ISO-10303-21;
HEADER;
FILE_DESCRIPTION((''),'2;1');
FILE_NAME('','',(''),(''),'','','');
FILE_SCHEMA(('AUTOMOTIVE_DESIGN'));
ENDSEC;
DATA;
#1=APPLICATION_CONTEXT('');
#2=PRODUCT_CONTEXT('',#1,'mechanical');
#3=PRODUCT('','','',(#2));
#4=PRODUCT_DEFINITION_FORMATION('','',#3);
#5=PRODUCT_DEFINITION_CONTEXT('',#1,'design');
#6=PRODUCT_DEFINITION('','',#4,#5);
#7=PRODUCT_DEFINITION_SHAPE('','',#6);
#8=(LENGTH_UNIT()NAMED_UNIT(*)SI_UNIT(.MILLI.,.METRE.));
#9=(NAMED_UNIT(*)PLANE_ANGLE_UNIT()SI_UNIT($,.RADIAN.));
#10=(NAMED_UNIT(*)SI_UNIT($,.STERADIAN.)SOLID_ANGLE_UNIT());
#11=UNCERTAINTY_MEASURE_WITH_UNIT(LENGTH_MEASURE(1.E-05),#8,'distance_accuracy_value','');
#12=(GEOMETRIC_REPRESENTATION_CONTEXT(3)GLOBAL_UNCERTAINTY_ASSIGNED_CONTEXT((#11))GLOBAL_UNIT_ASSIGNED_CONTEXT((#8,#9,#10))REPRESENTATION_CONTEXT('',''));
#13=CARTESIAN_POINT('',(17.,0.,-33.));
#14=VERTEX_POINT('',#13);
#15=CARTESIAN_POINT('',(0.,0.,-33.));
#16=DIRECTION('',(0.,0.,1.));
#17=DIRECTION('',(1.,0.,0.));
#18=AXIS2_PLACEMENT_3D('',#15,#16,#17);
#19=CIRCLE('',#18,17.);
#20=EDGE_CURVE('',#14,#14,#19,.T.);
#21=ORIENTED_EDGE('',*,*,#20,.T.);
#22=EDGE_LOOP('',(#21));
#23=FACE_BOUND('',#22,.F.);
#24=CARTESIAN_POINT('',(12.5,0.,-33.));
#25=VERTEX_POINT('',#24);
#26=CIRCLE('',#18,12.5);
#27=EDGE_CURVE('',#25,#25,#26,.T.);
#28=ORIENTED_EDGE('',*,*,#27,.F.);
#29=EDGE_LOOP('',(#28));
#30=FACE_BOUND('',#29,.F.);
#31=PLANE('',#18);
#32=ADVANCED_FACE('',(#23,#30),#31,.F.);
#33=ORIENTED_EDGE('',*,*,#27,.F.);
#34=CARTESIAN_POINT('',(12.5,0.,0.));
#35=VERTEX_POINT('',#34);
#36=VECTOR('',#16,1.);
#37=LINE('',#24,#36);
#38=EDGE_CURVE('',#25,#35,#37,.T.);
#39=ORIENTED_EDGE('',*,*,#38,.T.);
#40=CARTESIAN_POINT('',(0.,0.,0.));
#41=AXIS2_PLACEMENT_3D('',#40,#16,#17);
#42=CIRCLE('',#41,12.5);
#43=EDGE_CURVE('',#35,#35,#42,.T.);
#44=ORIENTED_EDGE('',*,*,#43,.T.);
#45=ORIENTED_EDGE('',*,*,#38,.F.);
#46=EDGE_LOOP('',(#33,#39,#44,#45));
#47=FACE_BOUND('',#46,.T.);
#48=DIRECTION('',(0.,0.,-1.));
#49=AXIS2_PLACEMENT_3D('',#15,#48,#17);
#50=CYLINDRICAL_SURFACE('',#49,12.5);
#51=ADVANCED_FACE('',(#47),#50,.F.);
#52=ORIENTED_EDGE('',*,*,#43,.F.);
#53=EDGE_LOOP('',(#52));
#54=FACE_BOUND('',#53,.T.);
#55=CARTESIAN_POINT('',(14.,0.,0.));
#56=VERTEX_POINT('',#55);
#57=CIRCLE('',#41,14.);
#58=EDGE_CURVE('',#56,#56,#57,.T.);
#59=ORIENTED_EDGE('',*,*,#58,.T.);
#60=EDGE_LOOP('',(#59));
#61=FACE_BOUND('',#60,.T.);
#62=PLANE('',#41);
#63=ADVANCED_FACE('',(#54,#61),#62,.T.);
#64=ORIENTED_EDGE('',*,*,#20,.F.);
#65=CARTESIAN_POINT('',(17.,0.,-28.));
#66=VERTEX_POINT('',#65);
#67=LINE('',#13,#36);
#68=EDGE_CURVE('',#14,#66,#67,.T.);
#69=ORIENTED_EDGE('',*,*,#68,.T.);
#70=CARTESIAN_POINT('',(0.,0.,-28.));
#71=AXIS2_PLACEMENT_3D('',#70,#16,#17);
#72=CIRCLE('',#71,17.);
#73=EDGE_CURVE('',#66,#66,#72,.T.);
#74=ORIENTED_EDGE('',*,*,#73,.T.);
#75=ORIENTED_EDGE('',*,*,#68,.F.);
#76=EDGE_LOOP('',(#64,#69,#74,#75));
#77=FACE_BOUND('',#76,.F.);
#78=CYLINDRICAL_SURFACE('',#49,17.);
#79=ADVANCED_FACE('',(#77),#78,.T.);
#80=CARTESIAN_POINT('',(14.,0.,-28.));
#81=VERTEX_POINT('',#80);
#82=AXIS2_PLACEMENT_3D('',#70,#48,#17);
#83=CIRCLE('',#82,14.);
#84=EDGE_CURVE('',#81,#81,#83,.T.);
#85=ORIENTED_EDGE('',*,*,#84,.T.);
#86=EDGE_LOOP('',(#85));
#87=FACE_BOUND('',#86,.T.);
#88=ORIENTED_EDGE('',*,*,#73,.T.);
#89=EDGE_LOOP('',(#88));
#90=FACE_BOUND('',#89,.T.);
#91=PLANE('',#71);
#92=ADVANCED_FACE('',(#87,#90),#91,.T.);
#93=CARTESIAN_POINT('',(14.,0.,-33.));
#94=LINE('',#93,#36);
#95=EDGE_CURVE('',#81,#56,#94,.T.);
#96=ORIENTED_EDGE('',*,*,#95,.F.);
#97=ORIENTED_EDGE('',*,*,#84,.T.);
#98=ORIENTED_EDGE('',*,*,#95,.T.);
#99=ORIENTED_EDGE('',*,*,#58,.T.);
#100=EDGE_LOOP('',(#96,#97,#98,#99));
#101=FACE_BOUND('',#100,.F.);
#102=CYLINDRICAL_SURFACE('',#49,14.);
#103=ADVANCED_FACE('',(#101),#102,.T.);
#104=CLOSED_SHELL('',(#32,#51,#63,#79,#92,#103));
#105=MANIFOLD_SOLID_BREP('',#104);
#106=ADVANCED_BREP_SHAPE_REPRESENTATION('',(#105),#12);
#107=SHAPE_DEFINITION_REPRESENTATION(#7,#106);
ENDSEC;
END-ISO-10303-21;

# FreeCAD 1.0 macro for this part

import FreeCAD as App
import Part
import Sketcher

V = App.Vector

doc = App.newDocument("Part")
body = doc.addObject("PartDesign::Body", "Body")

# Sketch on XY plane
sketch1 = body.newObject("Sketcher::SketchObject", "Sketch")
sketch1.AttachmentSupport = (doc.getObject("XY_Plane"), [""])
sketch1.MapMode = "FlatFace"
sketch1.AttachmentOffset = App.Placement(V(0, 0, -15), App.Rotation())
sketch1.addGeometry(Part.Circle(V(53.66, 148, 0), V(0, 0, 1), 1.5), False)
sketch1.addConstraint(Sketcher.Constraint("Diameter", 0, 3.0))
sketch1.addConstraint(Sketcher.Constraint("DistanceY", -1, 1, 0, 3, 148.0))
sketch1.addConstraint(Sketcher.Constraint("DistanceX", -1, 1, 0, 3, 53.66))
pad1 = body.newObject("PartDesign::Pad", "Pad")
pad1.Profile = sketch1
pad1.Length = 14
body2 = doc.addObject("PartDesign::Body", "Body001")

# Sketch on XY plane
sketch2 = body2.newObject("Sketcher::SketchObject", "Sketch001")
sketch2.AttachmentSupport = (doc.getObject("XY_Plane001"), [""])
sketch2.MapMode = "FlatFace"
sketch2.AttachmentOffset = App.Placement(V(0, 0, -10), App.Rotation())
sketch2.addGeometry(Part.Circle(V(73.66, 148, 0), V(0, 0, 1), 12.5), False)
sketch2.addConstraint(Sketcher.Constraint("Diameter", 0, 25.0))
sketch2.addConstraint(Sketcher.Constraint("DistanceY", -1, 1, 0, 3, 148.0))
sketch2.addConstraint(Sketcher.Constraint("DistanceX", -1, 1, 0, 3, 73.66))
pad2 = body2.newObject("PartDesign::Pad", "Pad001")
pad2.Profile = sketch2
pad2.Length = 33
body3 = doc.addObject("PartDesign::Body", "Body002")
body3.AllowCompound = True

# Sketch on XY plane
sketch3 = body3.newObject("Sketcher::SketchObject", "Sketch002")
sketch3.AttachmentSupport = (doc.getObject("XY_Plane002"), [""])
sketch3.MapMode = "FlatFace"
sketch3.AttachmentOffset = App.Placement(V(0, 0, -14), App.Rotation())
sketch3.addGeometry(Part.Circle(V(93.66, 148, 0), V(0, 0, 1), 1.5), False)
sketch3.addConstraint(Sketcher.Constraint("Diameter", 0, 3.0))
sketch3.addConstraint(Sketcher.Constraint("DistanceY", -1, 1, 0, 3, 148.0))
sketch3.addConstraint(Sketcher.Constraint("DistanceX", -1, 1, 0, 3, 93.66))
pad3 = body3.newObject("PartDesign::Pad", "Pad002")
pad3.Profile = sketch3
pad3.Length = 14
doc.recompute()

boolean = body3.newObject("PartDesign::Boolean", "Boolean")
boolean.Type = "Fuse"
boolean.addObjects([body])
doc.recompute()

boolean2 = body3.newObject("PartDesign::Boolean", "Boolean001")
boolean2.Type = "Fuse"
boolean2.addObjects([body2])
body4 = doc.addObject("PartDesign::Body", "Body003")

# Sketch on XY plane
sketch4 = body4.newObject("Sketcher::SketchObject", "Sketch003")
sketch4.AttachmentSupport = (doc.getObject("XY_Plane003"), [""])
sketch4.MapMode = "FlatFace"
sketch4.AttachmentOffset = App.Placement(V(0, 0, -10), App.Rotation())
sketch4.addGeometry(Part.Circle(V(73.66, 148, 0), V(0, 0, 1), 14), False)
sketch4.addConstraint(Sketcher.Constraint("Diameter", 0, 28.0))
sketch4.addConstraint(Sketcher.Constraint("DistanceY", -1, 1, 0, 3, 148.0))
sketch4.addConstraint(Sketcher.Constraint("DistanceX", -1, 1, 0, 3, 73.66))
pad4 = body4.newObject("PartDesign::Pad", "Pad003")
pad4.Profile = sketch4
pad4.Length = 33
body5 = doc.addObject("PartDesign::Body", "Body004")

# Sketch on XY plane
sketch5 = body5.newObject("Sketcher::SketchObject", "Sketch004")
sketch5.AttachmentSupport = (doc.getObject("XY_Plane004"), [""])
sketch5.MapMode = "FlatFace"
sketch5.AttachmentOffset = App.Placement(V(0, 0, -8), App.Rotation())
sketch5.addGeometry(Part.LineSegment(V(63, 137, 0), V(63, 136, 0)), False)
sketch5.addGeometry(Part.LineSegment(V(63, 136, 0), V(64, 136, 0)), False)
sketch5.addGeometry(Part.LineSegment(V(64, 136, 0), V(64, 137, 0)), False)
sketch5.addGeometry(Part.LineSegment(V(64, 137, 0), V(63, 137, 0)), False)
sketch5.addConstraint(Sketcher.Constraint("Coincident", 0, 2, 1, 1))
sketch5.addConstraint(Sketcher.Constraint("Coincident", 1, 2, 2, 1))
sketch5.addConstraint(Sketcher.Constraint("Coincident", 2, 2, 3, 1))
sketch5.addConstraint(Sketcher.Constraint("Coincident", 3, 2, 0, 1))
sketch5.addConstraint(Sketcher.Constraint("Vertical", 0))
sketch5.addConstraint(Sketcher.Constraint("Horizontal", 1))
sketch5.addConstraint(Sketcher.Constraint("Vertical", 2))
sketch5.addConstraint(Sketcher.Constraint("Horizontal", 3))
sketch5.addConstraint(Sketcher.Constraint("Equal", 3, 0))
sketch5.addConstraint(Sketcher.Constraint("DistanceX", 1, 1, 1, 2, 1.0))
sketch5.addConstraint(Sketcher.Constraint("DistanceX", -1, 1, 0, 2, 63.0))
sketch5.addConstraint(Sketcher.Constraint("DistanceY", -1, 1, 0, 2, 136.0))
pad5 = body5.newObject("PartDesign::Pad", "Pad004")
pad5.Profile = sketch5
pad5.Length = 1
body6 = doc.addObject("PartDesign::Body", "Body005")

# Sketch on XY plane
sketch6 = body6.newObject("Sketcher::SketchObject", "Sketch005")
sketch6.AttachmentSupport = (doc.getObject("XY_Plane005"), [""])
sketch6.MapMode = "FlatFace"
sketch6.AttachmentOffset = App.Placement(V(0, 0, -10), App.Rotation())
sketch6.addGeometry(Part.Circle(V(73.66, 148, 0), V(0, 0, 1), 17), False)
sketch6.addConstraint(Sketcher.Constraint("Diameter", 0, 34.0))
sketch6.addConstraint(Sketcher.Constraint("DistanceY", -1, 1, 0, 3, 148.0))
sketch6.addConstraint(Sketcher.Constraint("DistanceX", -1, 1, 0, 3, 73.66))
pad6 = body6.newObject("PartDesign::Pad", "Pad005")
pad6.Profile = sketch6
pad6.Length = 5
doc.recompute()

boolean3 = body6.newObject("PartDesign::Boolean", "Boolean002")
boolean3.Type = "Fuse"
boolean3.addObjects([body4])
doc.recompute()

boolean4 = body6.newObject("PartDesign::Boolean", "Boolean003")
boolean4.Type = "Fuse"
boolean4.addObjects([body5])
doc.recompute()

boolean5 = body6.newObject("PartDesign::Boolean", "Boolean004")
boolean5.Type = "Cut"
boolean5.addObjects([body3])
body7 = doc.addObject("PartDesign::Body", "Body006")
doc.recompute()

body6.Placement = App.Placement(V(-73.66, -148, -23), App.Rotation(V(0, 0, 1), 0))
boolean6 = body7.newObject("PartDesign::Boolean", "Boolean005")
boolean6.Type = "Fuse"
boolean6.addObjects([body6])

doc.recompute()
